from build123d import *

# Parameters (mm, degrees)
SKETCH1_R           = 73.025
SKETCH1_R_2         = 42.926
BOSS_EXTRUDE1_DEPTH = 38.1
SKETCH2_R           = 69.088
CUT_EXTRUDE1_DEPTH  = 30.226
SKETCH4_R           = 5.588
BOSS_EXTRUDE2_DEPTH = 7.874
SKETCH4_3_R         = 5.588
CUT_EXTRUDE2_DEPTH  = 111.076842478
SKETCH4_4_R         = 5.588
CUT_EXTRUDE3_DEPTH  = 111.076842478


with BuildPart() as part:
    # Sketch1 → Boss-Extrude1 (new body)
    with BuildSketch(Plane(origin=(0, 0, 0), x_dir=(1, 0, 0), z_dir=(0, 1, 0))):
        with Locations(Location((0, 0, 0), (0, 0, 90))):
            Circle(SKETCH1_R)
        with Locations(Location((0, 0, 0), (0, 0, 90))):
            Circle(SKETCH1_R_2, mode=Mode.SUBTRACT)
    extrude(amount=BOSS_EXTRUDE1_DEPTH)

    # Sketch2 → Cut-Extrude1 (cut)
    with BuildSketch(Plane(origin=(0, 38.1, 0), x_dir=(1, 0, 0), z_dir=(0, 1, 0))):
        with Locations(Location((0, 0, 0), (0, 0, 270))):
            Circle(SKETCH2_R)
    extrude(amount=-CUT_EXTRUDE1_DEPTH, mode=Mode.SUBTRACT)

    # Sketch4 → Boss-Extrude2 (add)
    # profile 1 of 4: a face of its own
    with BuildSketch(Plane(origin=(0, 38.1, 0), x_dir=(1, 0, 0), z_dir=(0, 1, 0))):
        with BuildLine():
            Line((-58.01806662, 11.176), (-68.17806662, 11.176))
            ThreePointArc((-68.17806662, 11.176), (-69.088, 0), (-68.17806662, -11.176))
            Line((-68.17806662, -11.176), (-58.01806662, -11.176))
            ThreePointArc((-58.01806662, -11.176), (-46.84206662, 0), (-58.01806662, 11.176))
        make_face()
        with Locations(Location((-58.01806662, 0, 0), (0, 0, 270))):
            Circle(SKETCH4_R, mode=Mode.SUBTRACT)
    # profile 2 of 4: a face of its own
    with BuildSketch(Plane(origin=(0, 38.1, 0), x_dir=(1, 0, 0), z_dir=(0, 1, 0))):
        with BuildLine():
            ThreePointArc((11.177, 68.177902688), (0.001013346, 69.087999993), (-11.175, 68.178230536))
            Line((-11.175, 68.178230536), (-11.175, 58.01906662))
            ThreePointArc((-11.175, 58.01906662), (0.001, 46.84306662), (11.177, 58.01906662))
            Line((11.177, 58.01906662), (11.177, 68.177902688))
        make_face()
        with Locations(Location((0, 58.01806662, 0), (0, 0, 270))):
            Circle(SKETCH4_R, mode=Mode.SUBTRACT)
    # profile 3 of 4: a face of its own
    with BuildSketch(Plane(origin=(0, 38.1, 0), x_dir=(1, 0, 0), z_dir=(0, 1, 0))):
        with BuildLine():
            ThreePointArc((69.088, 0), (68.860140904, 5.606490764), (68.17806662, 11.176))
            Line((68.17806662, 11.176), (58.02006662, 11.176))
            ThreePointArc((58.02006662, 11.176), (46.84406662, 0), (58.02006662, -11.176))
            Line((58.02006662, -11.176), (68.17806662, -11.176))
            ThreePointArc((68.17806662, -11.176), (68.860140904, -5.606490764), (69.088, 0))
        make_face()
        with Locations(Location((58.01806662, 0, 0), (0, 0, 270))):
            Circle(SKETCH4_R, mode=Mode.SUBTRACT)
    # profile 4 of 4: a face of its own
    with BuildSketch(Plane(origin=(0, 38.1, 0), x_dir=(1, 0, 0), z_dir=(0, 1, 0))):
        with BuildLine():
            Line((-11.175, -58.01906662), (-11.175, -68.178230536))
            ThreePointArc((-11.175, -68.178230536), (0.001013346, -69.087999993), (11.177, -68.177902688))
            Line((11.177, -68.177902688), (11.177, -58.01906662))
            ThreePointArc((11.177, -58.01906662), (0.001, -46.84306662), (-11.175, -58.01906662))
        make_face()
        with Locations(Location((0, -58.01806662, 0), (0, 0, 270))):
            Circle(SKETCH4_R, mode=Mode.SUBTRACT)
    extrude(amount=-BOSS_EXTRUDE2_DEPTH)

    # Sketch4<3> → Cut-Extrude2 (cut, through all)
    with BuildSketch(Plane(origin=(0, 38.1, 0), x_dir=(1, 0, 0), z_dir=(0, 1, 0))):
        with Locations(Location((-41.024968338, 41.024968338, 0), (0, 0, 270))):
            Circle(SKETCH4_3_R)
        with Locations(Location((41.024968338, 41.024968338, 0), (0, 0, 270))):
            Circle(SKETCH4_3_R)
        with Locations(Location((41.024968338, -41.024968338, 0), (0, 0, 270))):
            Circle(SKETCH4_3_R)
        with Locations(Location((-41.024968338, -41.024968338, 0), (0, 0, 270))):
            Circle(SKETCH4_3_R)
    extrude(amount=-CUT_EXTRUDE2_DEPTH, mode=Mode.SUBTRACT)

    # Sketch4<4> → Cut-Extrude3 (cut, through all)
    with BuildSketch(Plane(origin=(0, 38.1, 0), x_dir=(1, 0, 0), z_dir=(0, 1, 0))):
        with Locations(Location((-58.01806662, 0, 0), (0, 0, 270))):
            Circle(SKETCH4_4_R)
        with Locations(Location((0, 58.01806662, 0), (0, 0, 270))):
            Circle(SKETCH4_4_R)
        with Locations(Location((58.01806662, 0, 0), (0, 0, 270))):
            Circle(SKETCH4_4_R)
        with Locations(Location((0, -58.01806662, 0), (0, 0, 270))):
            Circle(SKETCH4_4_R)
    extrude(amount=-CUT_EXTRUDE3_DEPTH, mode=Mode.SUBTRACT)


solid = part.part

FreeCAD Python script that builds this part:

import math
import FreeCAD as App
import Part
import Sketcher

V = App.Vector
Q = App.Units.Quantity

doc = App.newDocument("Part")
params = doc.addObject("Spreadsheet::Sheet", "Params")
for row, (alias, value) in enumerate([
    ("sketch1_diameter", "5.75 in"),
    ("sketch1_diameter2", "3.38 in"),
    ("pad1_length", "1.5 in"),
    ("sketch2_diameter", "5.44 in"),
    ("pocket1_length", "1.19 in"),
    ("sketch3_diameter", "0.44 in"),
    ("sketch3_radius", "2.72 in"),
    ("sketch3_radius2", "0.44 in"),
    ("sketch3_width", "0.4 in"),
    ("pad2_length", "0.31 in"),
    ("sketch4_diameter", "0.44 in"),
    ("sketch5_diameter", "0.44 in"),
], start=1):
    params.set(f"A{row}", alias)
    params.set(f"B{row}", "=" + value)
    params.setAlias(f"B{row}", alias)

body = doc.addObject("PartDesign::Body", "Body")

# Sketch on XZ plane
sketch1 = doc.addObject("Sketcher::SketchObject", "Sketch")
body.addObject(sketch1)
sketch1.AttachmentSupport = (doc.XZ_Plane, [""])
sketch1.MapMode = "FlatFace"
sketch1.addGeometry([
    Part.Circle(V(0, 0, 0), V(0, 0, 1), 73),
    Part.Circle(V(0, 0, 0), V(0, 0, 1), 43),
], False)
sketch1.addConstraint([
    Sketcher.Constraint("Coincident", 0, 3, -1, 1),
    Sketcher.Constraint("Coincident", 1, 3, -1, 1),
    Sketcher.Constraint("Diameter", 0, Q("5.75 in")),
    Sketcher.Constraint("Diameter", 1, Q("3.38 in")),
])
sketch1.setExpression("Constraints[2]", "Params.sketch1_diameter")
sketch1.setExpression("Constraints[3]", "Params.sketch1_diameter2")
pad1 = doc.addObject("PartDesign::Pad", "Pad")
body.addObject(pad1)
pad1.Profile = sketch1
pad1.setExpression("Length", "Params.pad1_length")
pad1.Reversed = True

# Sketch on XZ plane
sketch2 = doc.addObject("Sketcher::SketchObject", "Sketch001")
body.addObject(sketch2)
sketch2.AttachmentSupport = (doc.XZ_Plane, [""])
sketch2.MapMode = "FlatFace"
sketch2.AttachmentOffset = App.Placement(V(0, 0, -1.5 * 25.4), App.Rotation())
sketch2.addGeometry(Part.Circle(V(0, 0, 0), V(0, 0, 1), 69), False)
sketch2.addConstraint([
    Sketcher.Constraint("Coincident", 0, 3, -1, 1),
    Sketcher.Constraint("Diameter", 0, Q("5.44 in")),
])
sketch2.setExpression("Constraints[1]", "Params.sketch2_diameter")
pocket1 = doc.addObject("PartDesign::Pocket", "Pocket")
body.addObject(pocket1)
pocket1.Profile = sketch2
pocket1.setExpression("Length", "Params.pocket1_length")
pocket1.Reversed = True

# Sketch on XZ plane
sketch3 = doc.addObject("Sketcher::SketchObject", "Sketch002")
body.addObject(sketch3)
sketch3.AttachmentSupport = (doc.XZ_Plane, [""])
sketch3.MapMode = "FlatFace"
sketch3.AttachmentOffset = App.Placement(V(0, 0, -1.5 * 25.4), App.Rotation())
sketch3.addGeometry([
    Part.LineSegment(V(-58, -11, 0), V(-68, -11, 0)),  # 0
    Part.ArcOfCircle(Part.Circle(V(0, 0, 0), V(0, 0, 1), 69), math.radians(170.69), math.radians(189.31)),  # 1
    Part.LineSegment(V(-68, 11, 0), V(-58, 11, 0)),  # 2
    Part.ArcOfCircle(Part.Circle(V(-58, 0, 0), V(0, 0, 1), 11), math.radians(-90), math.radians(90)),  # 3
    Part.Circle(V(-58, 0, 0), V(0, 0, 1), 6),  # 4
    Part.ArcOfCircle(Part.Circle(V(0, 0, 0), V(0, 0, 1), 69), math.radians(-99.31), math.radians(-80.69)),  # 5
    Part.LineSegment(V(-11, -68, 0), V(-11, -58, 0)),  # 6
    Part.ArcOfCircle(Part.Circle(V(0, -58, 0), V(0, 0, 1), 11), math.radians(0), math.radians(180)),  # 7
    Part.LineSegment(V(11, -58, 0), V(11, -68, 0)),  # 8
    Part.Circle(V(0, -58, 0), V(0, 0, 1), 6),  # 9
    Part.ArcOfCircle(Part.Circle(V(0, 0, 0), V(0, 0, 1), 69), math.radians(-9.31), math.radians(0)),  # 10
    Part.LineSegment(V(68, -11, 0), V(58, -11, 0)),  # 11
    Part.ArcOfCircle(Part.Circle(V(58, 0, 0), V(0, 0, 1), 11), math.radians(90), math.radians(270)),  # 12
    Part.LineSegment(V(58, 11, 0), V(68, 11, 0)),  # 13
    Part.ArcOfCircle(Part.Circle(V(0, 0, 0), V(0, 0, 1), 69), math.radians(0), math.radians(9.31)),  # 14
    Part.Circle(V(58, 0, 0), V(0, 0, 1), 6),  # 15
    Part.LineSegment(V(-11, 58, 0), V(-11, 68, 0)),  # 16
    Part.ArcOfCircle(Part.Circle(V(0, 0, 0), V(0, 0, 1), 69), math.radians(80.69), math.radians(99.31)),  # 17
    Part.LineSegment(V(11, 68, 0), V(11, 58, 0)),  # 18
    Part.ArcOfCircle(Part.Circle(V(0, 58, 0), V(0, 0, 1), 11), math.radians(180), math.radians(360)),  # 19
    Part.Circle(V(0, 58, 0), V(0, 0, 1), 6),  # 20
], False)
sketch3.addConstraint([
    Sketcher.Constraint("Coincident", 0, 2, 1, 2),
    Sketcher.Constraint("Coincident", 1, 1, 2, 1),
    Sketcher.Constraint("Tangent", 2, 2, 3, 2),
    Sketcher.Constraint("Tangent", 3, 1, 0, 1),
    Sketcher.Constraint("Coincident", 5, 1, 6, 1),
    Sketcher.Constraint("Tangent", 6, 2, 7, 2),
    Sketcher.Constraint("Tangent", 7, 1, 8, 1),
    Sketcher.Constraint("Coincident", 8, 2, 5, 2),
    Sketcher.Constraint("Coincident", 10, 1, 11, 1),
    Sketcher.Constraint("Tangent", 11, 2, 12, 2),
    Sketcher.Constraint("Tangent", 12, 1, 13, 1),
    Sketcher.Constraint("Coincident", 13, 2, 14, 2),
    Sketcher.Constraint("Tangent", 14, 1, 10, 2),
    Sketcher.Constraint("Coincident", 16, 2, 17, 2),
    Sketcher.Constraint("Coincident", 17, 1, 18, 1),
    Sketcher.Constraint("Tangent", 18, 2, 19, 2),
    Sketcher.Constraint("Tangent", 19, 1, 16, 1),
    Sketcher.Constraint("Horizontal", 0),
    Sketcher.Constraint("Horizontal", 2),
    Sketcher.Constraint("Vertical", 6),
    Sketcher.Constraint("Vertical", 8),
    Sketcher.Constraint("Horizontal", 11),
    Sketcher.Constraint("Horizontal", 13),
    Sketcher.Constraint("Vertical", 16),
    Sketcher.Constraint("Vertical", 18),
    Sketcher.Constraint("Coincident", 1, 3, -1, 1),
    Sketcher.Constraint("Coincident", 5, 3, -1, 1),
    Sketcher.Constraint("Coincident", 10, 3, -1, 1),
    Sketcher.Constraint("Coincident", 17, 3, -1, 1),
    Sketcher.Constraint("Coincident", 4, 3, 3, 3),
    Sketcher.Constraint("Equal", 1, 5),
    Sketcher.Constraint("Equal", 3, 7),
    Sketcher.Constraint("Equal", 4, 9),
    Sketcher.Constraint("Equal", 5, 10),
    Sketcher.Constraint("Equal", 7, 12),
    Sketcher.Constraint("Equal", 10, 14),
    Sketcher.Constraint("Equal", 9, 15),
    Sketcher.Constraint("Equal", 14, 17),
    Sketcher.Constraint("Equal", 12, 19),
    Sketcher.Constraint("Equal", 15, 20),
    Sketcher.Constraint("Symmetric", 3, 3, 15, 3, -1, 1),
    Sketcher.Constraint("Symmetric", 9, 3, 20, 3, -1, 1),
    Sketcher.Constraint("Symmetric", 7, 3, 19, 3, -1),
    Sketcher.Constraint("PointOnObject", 3, 3, -1),
    Sketcher.Constraint("PointOnObject", 9, 3, -2),
    Sketcher.Constraint("PointOnObject", 12, 3, -1),
    Sketcher.Constraint("PointOnObject", 14, 1, -1),
    Sketcher.Constraint("Diameter", 4, Q("0.44 in")),
    Sketcher.Constraint("Radius", 1, Q("2.72 in")),
    Sketcher.Constraint("Radius", 3, Q("0.44 in")),
    Sketcher.Constraint("DistanceX", 0, 2, 0, 1, Q("0.4 in")),
    Sketcher.Constraint("DistanceX", 11, 2, 11, 1, 10.158),
    Sketcher.Constraint("DistanceX", -1, 1, 7, 3, 0.001),
    Sketcher.Constraint("DistanceY", 7, 3, 9, 3, 0.001),
    Sketcher.Constraint("DistanceY", 6, 1, 6, 2, 10.159164),
])
sketch3.setExpression("Constraints[47]", "Params.sketch3_diameter")
sketch3.setExpression("Constraints[48]", "Params.sketch3_radius")
sketch3.setExpression("Constraints[49]", "Params.sketch3_radius2")
sketch3.setExpression("Constraints[50]", "Params.sketch3_width")
pad2 = doc.addObject("PartDesign::Pad", "Pad001")
body.addObject(pad2)
pad2.Profile = sketch3
pad2.setExpression("Length", "Params.pad2_length")

# Sketch on XZ plane
sketch4 = doc.addObject("Sketcher::SketchObject", "Sketch003")
body.addObject(sketch4)
sketch4.AttachmentSupport = (doc.XZ_Plane, [""])
sketch4.MapMode = "FlatFace"
sketch4.AttachmentOffset = App.Placement(V(0, 0, -1.5 * 25.4), App.Rotation())
sketch4.addGeometry([
    Part.Circle(V(-41, -41, 0), V(0, 0, 1), 6),
    Part.Circle(V(41, -41, 0), V(0, 0, 1), 6),
    Part.Circle(V(41, 41, 0), V(0, 0, 1), 6),
    Part.Circle(V(-41, 41, 0), V(0, 0, 1), 6),
], False)
sketch4.addConstraint([
    Sketcher.Constraint("Equal", 0, 1),
    Sketcher.Constraint("Equal", 1, 2),
    Sketcher.Constraint("Equal", 2, 3),
    Sketcher.Constraint("Symmetric", 0, 3, 2, 3, -1, 1),
    Sketcher.Constraint("Symmetric", 1, 3, 3, 3, -1, 1),
    Sketcher.Constraint("Symmetric", 0, 3, 1, 3, -2),
    Sketcher.Constraint("Diameter", 0, Q("0.44 in")),
    Sketcher.Constraint("DistanceX", 0, 3, -1, 1, 41.024968),
    Sketcher.Constraint("DistanceY", 0, 3, -1, 1, 41.024968),
])
sketch4.setExpression("Constraints[6]", "Params.sketch4_diameter")
pocket2 = doc.addObject("PartDesign::Pocket", "Pocket001")
body.addObject(pocket2)
pocket2.Profile = sketch4
pocket2.Type = "ThroughAll"
pocket2.Reversed = True

# Sketch on XZ plane
sketch5 = doc.addObject("Sketcher::SketchObject", "Sketch004")
body.addObject(sketch5)
sketch5.AttachmentSupport = (doc.XZ_Plane, [""])
sketch5.MapMode = "FlatFace"
sketch5.AttachmentOffset = App.Placement(V(0, 0, -1.5 * 25.4), App.Rotation())
sketch5.addGeometry([
    Part.Circle(V(-58, 0, 0), V(0, 0, 1), 6),
    Part.Circle(V(0, -58, 0), V(0, 0, 1), 6),
    Part.Circle(V(58, 0, 0), V(0, 0, 1), 6),
    Part.Circle(V(0, 58, 0), V(0, 0, 1), 6),
], False)
sketch5.addConstraint([
    Sketcher.Constraint("Equal", 0, 1),
    Sketcher.Constraint("Equal", 1, 2),
    Sketcher.Constraint("Equal", 2, 3),
    Sketcher.Constraint("Symmetric", 0, 3, 2, 3, -1, 1),
    Sketcher.Constraint("Symmetric", 1, 3, 3, 3, -1, 1),
    Sketcher.Constraint("PointOnObject", 0, 3, -1),
    Sketcher.Constraint("PointOnObject", 1, 3, -2),
    Sketcher.Constraint("Diameter", 0, Q("0.44 in")),
    Sketcher.Constraint("DistanceX", 0, 3, -1, 1, 58.018067),
    Sketcher.Constraint("DistanceY", 1, 3, -1, 1, 58.018067),
])
sketch5.setExpression("Constraints[7]", "Params.sketch5_diameter")
pocket3 = doc.addObject("PartDesign::Pocket", "Pocket002")
body.addObject(pocket3)
pocket3.Profile = sketch5
pocket3.Type = "ThroughAll"
pocket3.Reversed = True

doc.recompute()
